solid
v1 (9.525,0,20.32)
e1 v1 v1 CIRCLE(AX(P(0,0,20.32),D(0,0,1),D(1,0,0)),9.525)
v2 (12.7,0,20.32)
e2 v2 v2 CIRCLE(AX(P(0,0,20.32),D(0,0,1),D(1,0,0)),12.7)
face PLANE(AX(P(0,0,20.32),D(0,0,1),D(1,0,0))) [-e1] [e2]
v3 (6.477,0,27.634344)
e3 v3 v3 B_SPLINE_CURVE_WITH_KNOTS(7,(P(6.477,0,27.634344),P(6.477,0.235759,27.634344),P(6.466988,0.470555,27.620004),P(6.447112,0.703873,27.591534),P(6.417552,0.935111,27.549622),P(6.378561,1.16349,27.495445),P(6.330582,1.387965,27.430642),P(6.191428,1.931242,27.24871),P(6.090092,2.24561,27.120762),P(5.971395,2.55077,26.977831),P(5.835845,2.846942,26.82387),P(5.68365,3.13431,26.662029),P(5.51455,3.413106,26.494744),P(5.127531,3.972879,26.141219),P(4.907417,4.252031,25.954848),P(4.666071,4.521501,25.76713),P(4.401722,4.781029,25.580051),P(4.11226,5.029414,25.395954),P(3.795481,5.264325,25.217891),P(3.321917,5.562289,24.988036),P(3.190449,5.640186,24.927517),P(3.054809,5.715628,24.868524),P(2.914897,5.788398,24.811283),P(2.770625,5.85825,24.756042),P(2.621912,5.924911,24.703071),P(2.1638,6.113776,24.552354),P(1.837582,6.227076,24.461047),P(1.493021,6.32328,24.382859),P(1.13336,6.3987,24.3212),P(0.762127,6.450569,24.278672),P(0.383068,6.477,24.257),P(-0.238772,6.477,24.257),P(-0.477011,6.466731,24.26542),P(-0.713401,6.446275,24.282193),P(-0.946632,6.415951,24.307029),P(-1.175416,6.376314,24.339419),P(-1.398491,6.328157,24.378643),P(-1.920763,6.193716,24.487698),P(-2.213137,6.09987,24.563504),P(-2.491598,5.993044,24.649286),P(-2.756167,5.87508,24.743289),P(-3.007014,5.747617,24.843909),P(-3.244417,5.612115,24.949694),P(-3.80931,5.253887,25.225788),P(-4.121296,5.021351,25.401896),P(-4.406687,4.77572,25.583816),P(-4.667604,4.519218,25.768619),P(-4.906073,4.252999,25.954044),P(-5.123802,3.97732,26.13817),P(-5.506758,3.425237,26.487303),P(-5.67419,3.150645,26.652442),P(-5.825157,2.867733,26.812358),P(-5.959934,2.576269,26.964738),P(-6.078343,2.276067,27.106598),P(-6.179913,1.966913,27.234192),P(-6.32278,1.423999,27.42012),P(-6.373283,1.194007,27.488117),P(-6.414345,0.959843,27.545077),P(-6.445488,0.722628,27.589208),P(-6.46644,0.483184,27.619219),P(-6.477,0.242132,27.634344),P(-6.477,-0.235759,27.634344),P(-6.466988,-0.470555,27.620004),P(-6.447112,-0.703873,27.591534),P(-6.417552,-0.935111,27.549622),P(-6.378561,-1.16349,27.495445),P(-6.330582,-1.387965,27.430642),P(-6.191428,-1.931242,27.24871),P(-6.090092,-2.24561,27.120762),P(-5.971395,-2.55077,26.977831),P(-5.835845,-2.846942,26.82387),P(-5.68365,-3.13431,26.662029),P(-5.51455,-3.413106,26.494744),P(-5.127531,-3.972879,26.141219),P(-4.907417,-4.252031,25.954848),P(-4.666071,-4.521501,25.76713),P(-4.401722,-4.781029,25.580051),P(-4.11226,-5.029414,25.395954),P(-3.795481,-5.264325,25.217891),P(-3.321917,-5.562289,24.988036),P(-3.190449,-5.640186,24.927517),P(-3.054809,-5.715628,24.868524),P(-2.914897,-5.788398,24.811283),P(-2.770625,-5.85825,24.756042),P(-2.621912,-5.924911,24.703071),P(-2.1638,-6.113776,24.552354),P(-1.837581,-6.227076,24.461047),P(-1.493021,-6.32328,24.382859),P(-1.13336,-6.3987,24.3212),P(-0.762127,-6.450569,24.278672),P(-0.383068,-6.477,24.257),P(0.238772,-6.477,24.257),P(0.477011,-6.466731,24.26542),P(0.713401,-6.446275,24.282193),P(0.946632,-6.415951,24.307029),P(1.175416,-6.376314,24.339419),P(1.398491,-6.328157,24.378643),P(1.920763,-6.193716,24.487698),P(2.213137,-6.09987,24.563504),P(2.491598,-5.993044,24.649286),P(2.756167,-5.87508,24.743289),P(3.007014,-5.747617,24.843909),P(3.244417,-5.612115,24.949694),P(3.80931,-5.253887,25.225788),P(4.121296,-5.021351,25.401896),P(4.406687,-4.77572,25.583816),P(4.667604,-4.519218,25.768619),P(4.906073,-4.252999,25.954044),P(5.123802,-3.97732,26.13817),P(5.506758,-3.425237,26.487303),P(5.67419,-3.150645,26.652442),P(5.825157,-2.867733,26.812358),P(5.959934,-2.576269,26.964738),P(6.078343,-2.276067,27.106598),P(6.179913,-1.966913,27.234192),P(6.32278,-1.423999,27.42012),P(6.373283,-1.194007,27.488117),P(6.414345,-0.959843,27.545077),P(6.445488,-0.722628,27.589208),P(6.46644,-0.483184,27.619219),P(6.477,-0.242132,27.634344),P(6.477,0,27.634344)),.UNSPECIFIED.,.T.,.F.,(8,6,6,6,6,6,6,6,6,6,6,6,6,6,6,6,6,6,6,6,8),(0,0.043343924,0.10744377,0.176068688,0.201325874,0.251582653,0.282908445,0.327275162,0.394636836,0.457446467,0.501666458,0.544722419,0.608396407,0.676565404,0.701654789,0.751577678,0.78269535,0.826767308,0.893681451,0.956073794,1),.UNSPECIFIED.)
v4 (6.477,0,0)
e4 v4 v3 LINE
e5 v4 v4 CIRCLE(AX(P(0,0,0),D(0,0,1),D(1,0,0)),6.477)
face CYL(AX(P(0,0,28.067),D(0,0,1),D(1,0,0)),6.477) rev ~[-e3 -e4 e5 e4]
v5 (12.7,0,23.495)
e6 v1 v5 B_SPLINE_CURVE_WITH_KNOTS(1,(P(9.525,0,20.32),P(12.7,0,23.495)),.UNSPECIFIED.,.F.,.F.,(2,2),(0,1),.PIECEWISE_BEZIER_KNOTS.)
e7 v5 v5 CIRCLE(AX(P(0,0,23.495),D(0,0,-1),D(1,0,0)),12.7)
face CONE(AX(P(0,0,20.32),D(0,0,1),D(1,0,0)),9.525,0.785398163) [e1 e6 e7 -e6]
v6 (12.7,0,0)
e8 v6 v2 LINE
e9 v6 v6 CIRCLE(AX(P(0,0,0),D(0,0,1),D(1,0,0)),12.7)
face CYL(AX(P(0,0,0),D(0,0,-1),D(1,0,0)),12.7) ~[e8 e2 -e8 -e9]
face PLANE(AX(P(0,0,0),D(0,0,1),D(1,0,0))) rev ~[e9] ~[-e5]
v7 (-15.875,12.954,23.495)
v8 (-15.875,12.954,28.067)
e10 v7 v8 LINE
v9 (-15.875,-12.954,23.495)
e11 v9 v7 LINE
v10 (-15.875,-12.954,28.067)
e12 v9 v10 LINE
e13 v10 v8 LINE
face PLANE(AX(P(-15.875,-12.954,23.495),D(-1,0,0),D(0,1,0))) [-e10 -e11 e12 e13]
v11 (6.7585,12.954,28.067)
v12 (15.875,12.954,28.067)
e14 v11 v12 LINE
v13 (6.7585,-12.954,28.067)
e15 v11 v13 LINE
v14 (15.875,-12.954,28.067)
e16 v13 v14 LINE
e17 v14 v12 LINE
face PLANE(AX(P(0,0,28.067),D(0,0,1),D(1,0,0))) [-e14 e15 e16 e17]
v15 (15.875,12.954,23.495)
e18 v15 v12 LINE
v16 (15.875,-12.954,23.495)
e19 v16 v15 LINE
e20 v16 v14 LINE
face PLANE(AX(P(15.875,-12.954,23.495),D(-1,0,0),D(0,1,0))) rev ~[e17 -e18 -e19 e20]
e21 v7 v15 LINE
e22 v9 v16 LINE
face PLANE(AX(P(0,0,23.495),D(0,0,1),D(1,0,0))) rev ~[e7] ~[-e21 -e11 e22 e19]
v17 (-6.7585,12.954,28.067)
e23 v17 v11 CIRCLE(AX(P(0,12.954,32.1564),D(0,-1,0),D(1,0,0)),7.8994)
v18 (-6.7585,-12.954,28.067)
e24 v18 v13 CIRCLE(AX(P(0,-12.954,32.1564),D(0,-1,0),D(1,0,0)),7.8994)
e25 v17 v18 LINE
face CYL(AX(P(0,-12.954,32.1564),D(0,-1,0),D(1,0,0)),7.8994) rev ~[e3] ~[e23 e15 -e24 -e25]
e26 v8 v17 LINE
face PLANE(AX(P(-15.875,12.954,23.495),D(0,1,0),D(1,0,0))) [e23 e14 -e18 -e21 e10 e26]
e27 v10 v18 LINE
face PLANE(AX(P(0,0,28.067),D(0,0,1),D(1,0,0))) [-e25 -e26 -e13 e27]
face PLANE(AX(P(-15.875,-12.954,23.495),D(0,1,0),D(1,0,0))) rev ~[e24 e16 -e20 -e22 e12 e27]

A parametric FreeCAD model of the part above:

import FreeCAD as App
import Part
import Sketcher
Q = App.Units.Quantity

doc = App.newDocument("Part")
body = doc.addObject("PartDesign::Body", "Body")

# Sketch on XY plane
sketch1 = body.newObject("Sketcher::SketchObject", "Sketch")
sketch1.AttachmentSupport = (doc.getObject("XY_Plane"), [""])
sketch1.MapMode = "FlatFace"
sketch1.addGeometry(Part.Circle(App.Vector(0, 0, 0), App.Vector(0, 0, 1), 13), False)
sketch1.addConstraint([
    Sketcher.Constraint("Coincident", 0, 3, -1, 1),
    Sketcher.Constraint("Diameter", 0, Q("1 in")),
])
pad1 = body.newObject("PartDesign::Pad", "Pad")
pad1.Profile = sketch1
pad1.Length = Q("0.8 in")

# Sketch on XY plane
sketch2 = body.newObject("Sketcher::SketchObject", "Sketch001")
sketch2.AttachmentSupport = (doc.getObject("XY_Plane"), [""])
sketch2.MapMode = "FlatFace"
sketch2.AttachmentOffset = App.Placement(App.Vector(0, 0, 0.8 * 25.4), App.Rotation())
sketch2.addGeometry(Part.Circle(App.Vector(0, 0, 0), App.Vector(0, 0, 1), 10), False)
sketch2.addConstraint([
    Sketcher.Constraint("Coincident", 0, 3, -1, 1),
    Sketcher.Constraint("Diameter", 0, Q("0.75 in")),
])
pad2 = body.newObject("PartDesign::Pad", "Pad001")
pad2.Profile = sketch2
pad2.Length = Q("0.125 in")
pad2.TaperAngle = 45

# Sketch on XY plane
sketch3 = body.newObject("Sketcher::SketchObject", "Sketch002")
sketch3.AttachmentSupport = (doc.getObject("XY_Plane"), [""])
sketch3.MapMode = "FlatFace"
sketch3.AttachmentOffset = App.Placement(App.Vector(0, 0, 0.925 * 25.4), App.Rotation())
sketch3.addGeometry(Part.Circle(App.Vector(0, 0, 0), App.Vector(0, 0, 1), 6), False)
sketch3.addConstraint([
    Sketcher.Constraint("Coincident", 0, 3, -1, 1),
    Sketcher.Constraint("Diameter", 0, Q("0.51 in")),
])
pocket1 = body.newObject("PartDesign::Pocket", "Pocket")
pocket1.Profile = sketch3
pocket1.Type = "ThroughAll"

# Sketch on XY plane
sketch4 = body.newObject("Sketcher::SketchObject", "Sketch003")
sketch4.AttachmentSupport = (doc.getObject("XY_Plane"), [""])
sketch4.MapMode = "FlatFace"
sketch4.AttachmentOffset = App.Placement(App.Vector(0, 0, 0.925 * 25.4), App.Rotation())
sketch4.addGeometry([
    Part.LineSegment(App.Vector(-16, 13, 0), App.Vector(-16, -13, 0)),
    Part.LineSegment(App.Vector(-16, -13, 0), App.Vector(16, -13, 0)),
    Part.LineSegment(App.Vector(16, -13, 0), App.Vector(16, 13, 0)),
    Part.LineSegment(App.Vector(16, 13, 0), App.Vector(-16, 13, 0)),
], False)
sketch4.addConstraint([
    Sketcher.Constraint("Coincident", 0, 2, 1, 1),
    Sketcher.Constraint("Coincident", 1, 2, 2, 1),
    Sketcher.Constraint("Coincident", 2, 2, 3, 1),
    Sketcher.Constraint("Coincident", 3, 2, 0, 1),
    Sketcher.Constraint("Vertical", 0),
    Sketcher.Constraint("Horizontal", 1),
    Sketcher.Constraint("Vertical", 2),
    Sketcher.Constraint("Horizontal", 3),
    Sketcher.Constraint("Symmetric", 0, 2, 2, 2, -1, 1),
    Sketcher.Constraint("DistanceX", 1, 1, 1, 2, Q("1.25 in")),
    Sketcher.Constraint("DistanceY", 0, 2, 0, 1, Q("1.02 in")),
])
pad3 = body.newObject("PartDesign::Pad", "Pad002")
pad3.Profile = sketch4
pad3.Length = Q("0.18 in")

# Sketch on XY plane
sketch5 = body.newObject("Sketcher::SketchObject", "Sketch004")
sketch5.AttachmentSupport = (doc.getObject("XY_Plane"), [""])
sketch5.MapMode = "FlatFace"
sketch5.AttachmentOffset = App.Placement(App.Vector(0, 0, 1.105 * 25.4), App.Rotation())
sketch5.addGeometry(Part.Circle(App.Vector(0, 0, 0), App.Vector(0, 0, 1), 6), False)
sketch5.addConstraint([
    Sketcher.Constraint("Coincident", 0, 3, -1, 1),
    Sketcher.Constraint("Diameter", 0, Q("0.51 in")),
])
pocket2 = body.newObject("PartDesign::Pocket", "Pocket001")
pocket2.Profile = sketch5
pocket2.Type = "ThroughAll"

# Sketch on XZ plane
sketch6 = body.newObject("Sketcher::SketchObject", "Sketch005")
sketch6.AttachmentSupport = (doc.getObject("XZ_Plane"), [""])
sketch6.MapMode = "FlatFace"
sketch6.AttachmentOffset = App.Placement(App.Vector(0, 0, 0.51 * 25.4), App.Rotation())
sketch6.addGeometry(Part.Circle(App.Vector(0, 32, 0), App.Vector(0, 0, 1), 8), False)
sketch6.addConstraint([
    Sketcher.Constraint("PointOnObject", 0, 3, -2),
    Sketcher.Constraint("Diameter", 0, Q("0.622 in")),
    Sketcher.Constraint("DistanceY", -1, 1, 0, 3, Q("1.266 in")),
])
pocket3 = body.newObject("PartDesign::Pocket", "Pocket002")
pocket3.Profile = sketch6
pocket3.Type = "ThroughAll"

doc.recompute()
